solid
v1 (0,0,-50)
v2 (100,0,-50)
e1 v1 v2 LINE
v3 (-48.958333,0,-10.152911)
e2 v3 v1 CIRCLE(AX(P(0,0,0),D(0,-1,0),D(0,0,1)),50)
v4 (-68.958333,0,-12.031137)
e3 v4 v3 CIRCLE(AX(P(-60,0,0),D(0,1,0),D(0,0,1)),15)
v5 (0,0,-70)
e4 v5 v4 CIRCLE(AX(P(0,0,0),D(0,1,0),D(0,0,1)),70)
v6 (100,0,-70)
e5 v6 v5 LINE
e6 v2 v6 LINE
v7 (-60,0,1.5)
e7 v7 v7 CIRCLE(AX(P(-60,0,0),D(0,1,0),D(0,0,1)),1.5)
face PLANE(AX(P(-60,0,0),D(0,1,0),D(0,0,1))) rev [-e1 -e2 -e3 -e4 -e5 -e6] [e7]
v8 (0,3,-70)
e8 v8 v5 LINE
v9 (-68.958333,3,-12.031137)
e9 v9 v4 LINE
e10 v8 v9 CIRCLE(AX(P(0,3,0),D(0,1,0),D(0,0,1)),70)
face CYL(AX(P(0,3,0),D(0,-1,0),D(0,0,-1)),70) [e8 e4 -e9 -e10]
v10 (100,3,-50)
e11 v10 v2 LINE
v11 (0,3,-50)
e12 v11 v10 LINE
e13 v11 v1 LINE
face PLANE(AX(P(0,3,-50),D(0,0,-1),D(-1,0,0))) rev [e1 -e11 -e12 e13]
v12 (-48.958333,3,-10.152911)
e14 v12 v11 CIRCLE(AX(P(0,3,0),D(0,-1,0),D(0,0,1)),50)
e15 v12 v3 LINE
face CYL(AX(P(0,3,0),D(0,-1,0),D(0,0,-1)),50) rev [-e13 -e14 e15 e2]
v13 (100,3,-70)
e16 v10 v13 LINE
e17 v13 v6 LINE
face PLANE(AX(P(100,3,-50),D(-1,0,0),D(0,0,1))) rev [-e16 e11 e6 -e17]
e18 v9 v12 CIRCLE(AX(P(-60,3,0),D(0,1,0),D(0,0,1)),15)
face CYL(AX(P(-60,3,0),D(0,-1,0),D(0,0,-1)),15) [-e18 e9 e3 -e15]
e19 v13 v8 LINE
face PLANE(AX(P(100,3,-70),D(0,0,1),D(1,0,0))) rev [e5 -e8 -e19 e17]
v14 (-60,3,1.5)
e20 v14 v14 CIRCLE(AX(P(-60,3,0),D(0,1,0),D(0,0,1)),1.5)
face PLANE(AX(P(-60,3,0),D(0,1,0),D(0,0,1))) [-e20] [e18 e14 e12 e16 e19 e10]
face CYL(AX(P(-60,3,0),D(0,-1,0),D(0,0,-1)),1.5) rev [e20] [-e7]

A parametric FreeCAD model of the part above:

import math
import FreeCAD as App
import Part
import Sketcher
from FreeCAD import Vector
Q = App.Units.Quantity

doc = App.newDocument("Part")
params = doc.addObject("Spreadsheet::Sheet", "Params")
for row, (alias, value) in enumerate([
    ("sketch1_diameter", "3 mm"),
    ("sketch1_radius", "70 mm"),
    ("sketch1_radius2", "15 mm"),
    ("sketch1_radius3", "50 mm"),
    ("sketch1_width", "100 mm"),
    ("pad1_length", "3 mm"),
], start=1):
    params.set(f"A{row}", alias)
    params.set(f"B{row}", "=" + value)
    params.setAlias(f"B{row}", alias)

body = doc.addObject("PartDesign::Body", "Body")

# Sketch on XZ plane
sketch1 = doc.addObject("Sketcher::SketchObject", "Sketch")
body.addObject(sketch1)
sketch1.AttachmentSupport = (doc.XZ_Plane, [""])
sketch1.MapMode = "FlatFace"
sketch1.addGeometry(Part.LineSegment(Vector(0, -50, 0), Vector(100, -50, 0)), False)
sketch1.addGeometry(Part.LineSegment(Vector(100, -50, 0), Vector(100, -70, 0)), False)
sketch1.addGeometry(Part.LineSegment(Vector(100, -70, 0), Vector(0, -70, 0)), False)
sketch1.addGeometry(Part.ArcOfCircle(Part.Circle(Vector(0, 0, 0), Vector(0, 0, 1), 70), math.radians(-170.10324), math.radians(-90)), False)
sketch1.addGeometry(Part.ArcOfCircle(Part.Circle(Vector(-60, 0, 0), Vector(0, 0, 1), 15), math.radians(-42.598813), math.radians(233.328788)), False)
sketch1.addGeometry(Part.ArcOfCircle(Part.Circle(Vector(0, 0, 0), Vector(0, 0, 1), 50), math.radians(-168.284148), math.radians(-90)), False)
sketch1.addGeometry(Part.Circle(Vector(-60, 0, 0), Vector(0, 0, 1), 1.5), False)
sketch1.addConstraint(Sketcher.Constraint("Coincident", 0, 2, 1, 1))
sketch1.addConstraint(Sketcher.Constraint("Coincident", 1, 2, 2, 1))
sketch1.addConstraint(Sketcher.Constraint("Tangent", 2, 2, 3, 2))
sketch1.addConstraint(Sketcher.Constraint("Coincident", 3, 1, 4, 2))
sketch1.addConstraint(Sketcher.Constraint("Coincident", 4, 1, 5, 1))
sketch1.addConstraint(Sketcher.Constraint("Tangent", 5, 2, 0, 1))
sketch1.addConstraint(Sketcher.Constraint("Horizontal", 0))
sketch1.addConstraint(Sketcher.Constraint("Vertical", 1))
sketch1.addConstraint(Sketcher.Constraint("Horizontal", 2))
sketch1.addConstraint(Sketcher.Constraint("Coincident", 3, 3, -1, 1))
sketch1.addConstraint(Sketcher.Constraint("Coincident", 5, 3, -1, 1))
sketch1.addConstraint(Sketcher.Constraint("Coincident", 6, 3, 4, 3))
sketch1.addConstraint(Sketcher.Constraint("PointOnObject", 4, 3, -1))
sketch1.addConstraint(Sketcher.Constraint("Diameter", 6, Q("3 mm")))
sketch1.addConstraint(Sketcher.Constraint("Radius", 3, Q("70 mm")))
sketch1.addConstraint(Sketcher.Constraint("Radius", 4, Q("15 mm")))
sketch1.addConstraint(Sketcher.Constraint("Radius", 5, Q("50 mm")))
sketch1.addConstraint(Sketcher.Constraint("DistanceX", 0, 1, 0, 2, Q("100 mm")))
sketch1.addConstraint(Sketcher.Constraint("DistanceX", 4, 3, -1, 1, Q("60 mm")))
sketch1.setExpression("Constraints[13]", "Params.sketch1_diameter")
sketch1.setExpression("Constraints[14]", "Params.sketch1_radius")
sketch1.setExpression("Constraints[15]", "Params.sketch1_radius2")
sketch1.setExpression("Constraints[16]", "Params.sketch1_radius3")
sketch1.setExpression("Constraints[17]", "Params.sketch1_width")
pad1 = doc.addObject("PartDesign::Pad", "Pad")
body.addObject(pad1)
pad1.Profile = sketch1
pad1.setExpression("Length", "Params.pad1_length")
pad1.Reversed = True

doc.recompute()
